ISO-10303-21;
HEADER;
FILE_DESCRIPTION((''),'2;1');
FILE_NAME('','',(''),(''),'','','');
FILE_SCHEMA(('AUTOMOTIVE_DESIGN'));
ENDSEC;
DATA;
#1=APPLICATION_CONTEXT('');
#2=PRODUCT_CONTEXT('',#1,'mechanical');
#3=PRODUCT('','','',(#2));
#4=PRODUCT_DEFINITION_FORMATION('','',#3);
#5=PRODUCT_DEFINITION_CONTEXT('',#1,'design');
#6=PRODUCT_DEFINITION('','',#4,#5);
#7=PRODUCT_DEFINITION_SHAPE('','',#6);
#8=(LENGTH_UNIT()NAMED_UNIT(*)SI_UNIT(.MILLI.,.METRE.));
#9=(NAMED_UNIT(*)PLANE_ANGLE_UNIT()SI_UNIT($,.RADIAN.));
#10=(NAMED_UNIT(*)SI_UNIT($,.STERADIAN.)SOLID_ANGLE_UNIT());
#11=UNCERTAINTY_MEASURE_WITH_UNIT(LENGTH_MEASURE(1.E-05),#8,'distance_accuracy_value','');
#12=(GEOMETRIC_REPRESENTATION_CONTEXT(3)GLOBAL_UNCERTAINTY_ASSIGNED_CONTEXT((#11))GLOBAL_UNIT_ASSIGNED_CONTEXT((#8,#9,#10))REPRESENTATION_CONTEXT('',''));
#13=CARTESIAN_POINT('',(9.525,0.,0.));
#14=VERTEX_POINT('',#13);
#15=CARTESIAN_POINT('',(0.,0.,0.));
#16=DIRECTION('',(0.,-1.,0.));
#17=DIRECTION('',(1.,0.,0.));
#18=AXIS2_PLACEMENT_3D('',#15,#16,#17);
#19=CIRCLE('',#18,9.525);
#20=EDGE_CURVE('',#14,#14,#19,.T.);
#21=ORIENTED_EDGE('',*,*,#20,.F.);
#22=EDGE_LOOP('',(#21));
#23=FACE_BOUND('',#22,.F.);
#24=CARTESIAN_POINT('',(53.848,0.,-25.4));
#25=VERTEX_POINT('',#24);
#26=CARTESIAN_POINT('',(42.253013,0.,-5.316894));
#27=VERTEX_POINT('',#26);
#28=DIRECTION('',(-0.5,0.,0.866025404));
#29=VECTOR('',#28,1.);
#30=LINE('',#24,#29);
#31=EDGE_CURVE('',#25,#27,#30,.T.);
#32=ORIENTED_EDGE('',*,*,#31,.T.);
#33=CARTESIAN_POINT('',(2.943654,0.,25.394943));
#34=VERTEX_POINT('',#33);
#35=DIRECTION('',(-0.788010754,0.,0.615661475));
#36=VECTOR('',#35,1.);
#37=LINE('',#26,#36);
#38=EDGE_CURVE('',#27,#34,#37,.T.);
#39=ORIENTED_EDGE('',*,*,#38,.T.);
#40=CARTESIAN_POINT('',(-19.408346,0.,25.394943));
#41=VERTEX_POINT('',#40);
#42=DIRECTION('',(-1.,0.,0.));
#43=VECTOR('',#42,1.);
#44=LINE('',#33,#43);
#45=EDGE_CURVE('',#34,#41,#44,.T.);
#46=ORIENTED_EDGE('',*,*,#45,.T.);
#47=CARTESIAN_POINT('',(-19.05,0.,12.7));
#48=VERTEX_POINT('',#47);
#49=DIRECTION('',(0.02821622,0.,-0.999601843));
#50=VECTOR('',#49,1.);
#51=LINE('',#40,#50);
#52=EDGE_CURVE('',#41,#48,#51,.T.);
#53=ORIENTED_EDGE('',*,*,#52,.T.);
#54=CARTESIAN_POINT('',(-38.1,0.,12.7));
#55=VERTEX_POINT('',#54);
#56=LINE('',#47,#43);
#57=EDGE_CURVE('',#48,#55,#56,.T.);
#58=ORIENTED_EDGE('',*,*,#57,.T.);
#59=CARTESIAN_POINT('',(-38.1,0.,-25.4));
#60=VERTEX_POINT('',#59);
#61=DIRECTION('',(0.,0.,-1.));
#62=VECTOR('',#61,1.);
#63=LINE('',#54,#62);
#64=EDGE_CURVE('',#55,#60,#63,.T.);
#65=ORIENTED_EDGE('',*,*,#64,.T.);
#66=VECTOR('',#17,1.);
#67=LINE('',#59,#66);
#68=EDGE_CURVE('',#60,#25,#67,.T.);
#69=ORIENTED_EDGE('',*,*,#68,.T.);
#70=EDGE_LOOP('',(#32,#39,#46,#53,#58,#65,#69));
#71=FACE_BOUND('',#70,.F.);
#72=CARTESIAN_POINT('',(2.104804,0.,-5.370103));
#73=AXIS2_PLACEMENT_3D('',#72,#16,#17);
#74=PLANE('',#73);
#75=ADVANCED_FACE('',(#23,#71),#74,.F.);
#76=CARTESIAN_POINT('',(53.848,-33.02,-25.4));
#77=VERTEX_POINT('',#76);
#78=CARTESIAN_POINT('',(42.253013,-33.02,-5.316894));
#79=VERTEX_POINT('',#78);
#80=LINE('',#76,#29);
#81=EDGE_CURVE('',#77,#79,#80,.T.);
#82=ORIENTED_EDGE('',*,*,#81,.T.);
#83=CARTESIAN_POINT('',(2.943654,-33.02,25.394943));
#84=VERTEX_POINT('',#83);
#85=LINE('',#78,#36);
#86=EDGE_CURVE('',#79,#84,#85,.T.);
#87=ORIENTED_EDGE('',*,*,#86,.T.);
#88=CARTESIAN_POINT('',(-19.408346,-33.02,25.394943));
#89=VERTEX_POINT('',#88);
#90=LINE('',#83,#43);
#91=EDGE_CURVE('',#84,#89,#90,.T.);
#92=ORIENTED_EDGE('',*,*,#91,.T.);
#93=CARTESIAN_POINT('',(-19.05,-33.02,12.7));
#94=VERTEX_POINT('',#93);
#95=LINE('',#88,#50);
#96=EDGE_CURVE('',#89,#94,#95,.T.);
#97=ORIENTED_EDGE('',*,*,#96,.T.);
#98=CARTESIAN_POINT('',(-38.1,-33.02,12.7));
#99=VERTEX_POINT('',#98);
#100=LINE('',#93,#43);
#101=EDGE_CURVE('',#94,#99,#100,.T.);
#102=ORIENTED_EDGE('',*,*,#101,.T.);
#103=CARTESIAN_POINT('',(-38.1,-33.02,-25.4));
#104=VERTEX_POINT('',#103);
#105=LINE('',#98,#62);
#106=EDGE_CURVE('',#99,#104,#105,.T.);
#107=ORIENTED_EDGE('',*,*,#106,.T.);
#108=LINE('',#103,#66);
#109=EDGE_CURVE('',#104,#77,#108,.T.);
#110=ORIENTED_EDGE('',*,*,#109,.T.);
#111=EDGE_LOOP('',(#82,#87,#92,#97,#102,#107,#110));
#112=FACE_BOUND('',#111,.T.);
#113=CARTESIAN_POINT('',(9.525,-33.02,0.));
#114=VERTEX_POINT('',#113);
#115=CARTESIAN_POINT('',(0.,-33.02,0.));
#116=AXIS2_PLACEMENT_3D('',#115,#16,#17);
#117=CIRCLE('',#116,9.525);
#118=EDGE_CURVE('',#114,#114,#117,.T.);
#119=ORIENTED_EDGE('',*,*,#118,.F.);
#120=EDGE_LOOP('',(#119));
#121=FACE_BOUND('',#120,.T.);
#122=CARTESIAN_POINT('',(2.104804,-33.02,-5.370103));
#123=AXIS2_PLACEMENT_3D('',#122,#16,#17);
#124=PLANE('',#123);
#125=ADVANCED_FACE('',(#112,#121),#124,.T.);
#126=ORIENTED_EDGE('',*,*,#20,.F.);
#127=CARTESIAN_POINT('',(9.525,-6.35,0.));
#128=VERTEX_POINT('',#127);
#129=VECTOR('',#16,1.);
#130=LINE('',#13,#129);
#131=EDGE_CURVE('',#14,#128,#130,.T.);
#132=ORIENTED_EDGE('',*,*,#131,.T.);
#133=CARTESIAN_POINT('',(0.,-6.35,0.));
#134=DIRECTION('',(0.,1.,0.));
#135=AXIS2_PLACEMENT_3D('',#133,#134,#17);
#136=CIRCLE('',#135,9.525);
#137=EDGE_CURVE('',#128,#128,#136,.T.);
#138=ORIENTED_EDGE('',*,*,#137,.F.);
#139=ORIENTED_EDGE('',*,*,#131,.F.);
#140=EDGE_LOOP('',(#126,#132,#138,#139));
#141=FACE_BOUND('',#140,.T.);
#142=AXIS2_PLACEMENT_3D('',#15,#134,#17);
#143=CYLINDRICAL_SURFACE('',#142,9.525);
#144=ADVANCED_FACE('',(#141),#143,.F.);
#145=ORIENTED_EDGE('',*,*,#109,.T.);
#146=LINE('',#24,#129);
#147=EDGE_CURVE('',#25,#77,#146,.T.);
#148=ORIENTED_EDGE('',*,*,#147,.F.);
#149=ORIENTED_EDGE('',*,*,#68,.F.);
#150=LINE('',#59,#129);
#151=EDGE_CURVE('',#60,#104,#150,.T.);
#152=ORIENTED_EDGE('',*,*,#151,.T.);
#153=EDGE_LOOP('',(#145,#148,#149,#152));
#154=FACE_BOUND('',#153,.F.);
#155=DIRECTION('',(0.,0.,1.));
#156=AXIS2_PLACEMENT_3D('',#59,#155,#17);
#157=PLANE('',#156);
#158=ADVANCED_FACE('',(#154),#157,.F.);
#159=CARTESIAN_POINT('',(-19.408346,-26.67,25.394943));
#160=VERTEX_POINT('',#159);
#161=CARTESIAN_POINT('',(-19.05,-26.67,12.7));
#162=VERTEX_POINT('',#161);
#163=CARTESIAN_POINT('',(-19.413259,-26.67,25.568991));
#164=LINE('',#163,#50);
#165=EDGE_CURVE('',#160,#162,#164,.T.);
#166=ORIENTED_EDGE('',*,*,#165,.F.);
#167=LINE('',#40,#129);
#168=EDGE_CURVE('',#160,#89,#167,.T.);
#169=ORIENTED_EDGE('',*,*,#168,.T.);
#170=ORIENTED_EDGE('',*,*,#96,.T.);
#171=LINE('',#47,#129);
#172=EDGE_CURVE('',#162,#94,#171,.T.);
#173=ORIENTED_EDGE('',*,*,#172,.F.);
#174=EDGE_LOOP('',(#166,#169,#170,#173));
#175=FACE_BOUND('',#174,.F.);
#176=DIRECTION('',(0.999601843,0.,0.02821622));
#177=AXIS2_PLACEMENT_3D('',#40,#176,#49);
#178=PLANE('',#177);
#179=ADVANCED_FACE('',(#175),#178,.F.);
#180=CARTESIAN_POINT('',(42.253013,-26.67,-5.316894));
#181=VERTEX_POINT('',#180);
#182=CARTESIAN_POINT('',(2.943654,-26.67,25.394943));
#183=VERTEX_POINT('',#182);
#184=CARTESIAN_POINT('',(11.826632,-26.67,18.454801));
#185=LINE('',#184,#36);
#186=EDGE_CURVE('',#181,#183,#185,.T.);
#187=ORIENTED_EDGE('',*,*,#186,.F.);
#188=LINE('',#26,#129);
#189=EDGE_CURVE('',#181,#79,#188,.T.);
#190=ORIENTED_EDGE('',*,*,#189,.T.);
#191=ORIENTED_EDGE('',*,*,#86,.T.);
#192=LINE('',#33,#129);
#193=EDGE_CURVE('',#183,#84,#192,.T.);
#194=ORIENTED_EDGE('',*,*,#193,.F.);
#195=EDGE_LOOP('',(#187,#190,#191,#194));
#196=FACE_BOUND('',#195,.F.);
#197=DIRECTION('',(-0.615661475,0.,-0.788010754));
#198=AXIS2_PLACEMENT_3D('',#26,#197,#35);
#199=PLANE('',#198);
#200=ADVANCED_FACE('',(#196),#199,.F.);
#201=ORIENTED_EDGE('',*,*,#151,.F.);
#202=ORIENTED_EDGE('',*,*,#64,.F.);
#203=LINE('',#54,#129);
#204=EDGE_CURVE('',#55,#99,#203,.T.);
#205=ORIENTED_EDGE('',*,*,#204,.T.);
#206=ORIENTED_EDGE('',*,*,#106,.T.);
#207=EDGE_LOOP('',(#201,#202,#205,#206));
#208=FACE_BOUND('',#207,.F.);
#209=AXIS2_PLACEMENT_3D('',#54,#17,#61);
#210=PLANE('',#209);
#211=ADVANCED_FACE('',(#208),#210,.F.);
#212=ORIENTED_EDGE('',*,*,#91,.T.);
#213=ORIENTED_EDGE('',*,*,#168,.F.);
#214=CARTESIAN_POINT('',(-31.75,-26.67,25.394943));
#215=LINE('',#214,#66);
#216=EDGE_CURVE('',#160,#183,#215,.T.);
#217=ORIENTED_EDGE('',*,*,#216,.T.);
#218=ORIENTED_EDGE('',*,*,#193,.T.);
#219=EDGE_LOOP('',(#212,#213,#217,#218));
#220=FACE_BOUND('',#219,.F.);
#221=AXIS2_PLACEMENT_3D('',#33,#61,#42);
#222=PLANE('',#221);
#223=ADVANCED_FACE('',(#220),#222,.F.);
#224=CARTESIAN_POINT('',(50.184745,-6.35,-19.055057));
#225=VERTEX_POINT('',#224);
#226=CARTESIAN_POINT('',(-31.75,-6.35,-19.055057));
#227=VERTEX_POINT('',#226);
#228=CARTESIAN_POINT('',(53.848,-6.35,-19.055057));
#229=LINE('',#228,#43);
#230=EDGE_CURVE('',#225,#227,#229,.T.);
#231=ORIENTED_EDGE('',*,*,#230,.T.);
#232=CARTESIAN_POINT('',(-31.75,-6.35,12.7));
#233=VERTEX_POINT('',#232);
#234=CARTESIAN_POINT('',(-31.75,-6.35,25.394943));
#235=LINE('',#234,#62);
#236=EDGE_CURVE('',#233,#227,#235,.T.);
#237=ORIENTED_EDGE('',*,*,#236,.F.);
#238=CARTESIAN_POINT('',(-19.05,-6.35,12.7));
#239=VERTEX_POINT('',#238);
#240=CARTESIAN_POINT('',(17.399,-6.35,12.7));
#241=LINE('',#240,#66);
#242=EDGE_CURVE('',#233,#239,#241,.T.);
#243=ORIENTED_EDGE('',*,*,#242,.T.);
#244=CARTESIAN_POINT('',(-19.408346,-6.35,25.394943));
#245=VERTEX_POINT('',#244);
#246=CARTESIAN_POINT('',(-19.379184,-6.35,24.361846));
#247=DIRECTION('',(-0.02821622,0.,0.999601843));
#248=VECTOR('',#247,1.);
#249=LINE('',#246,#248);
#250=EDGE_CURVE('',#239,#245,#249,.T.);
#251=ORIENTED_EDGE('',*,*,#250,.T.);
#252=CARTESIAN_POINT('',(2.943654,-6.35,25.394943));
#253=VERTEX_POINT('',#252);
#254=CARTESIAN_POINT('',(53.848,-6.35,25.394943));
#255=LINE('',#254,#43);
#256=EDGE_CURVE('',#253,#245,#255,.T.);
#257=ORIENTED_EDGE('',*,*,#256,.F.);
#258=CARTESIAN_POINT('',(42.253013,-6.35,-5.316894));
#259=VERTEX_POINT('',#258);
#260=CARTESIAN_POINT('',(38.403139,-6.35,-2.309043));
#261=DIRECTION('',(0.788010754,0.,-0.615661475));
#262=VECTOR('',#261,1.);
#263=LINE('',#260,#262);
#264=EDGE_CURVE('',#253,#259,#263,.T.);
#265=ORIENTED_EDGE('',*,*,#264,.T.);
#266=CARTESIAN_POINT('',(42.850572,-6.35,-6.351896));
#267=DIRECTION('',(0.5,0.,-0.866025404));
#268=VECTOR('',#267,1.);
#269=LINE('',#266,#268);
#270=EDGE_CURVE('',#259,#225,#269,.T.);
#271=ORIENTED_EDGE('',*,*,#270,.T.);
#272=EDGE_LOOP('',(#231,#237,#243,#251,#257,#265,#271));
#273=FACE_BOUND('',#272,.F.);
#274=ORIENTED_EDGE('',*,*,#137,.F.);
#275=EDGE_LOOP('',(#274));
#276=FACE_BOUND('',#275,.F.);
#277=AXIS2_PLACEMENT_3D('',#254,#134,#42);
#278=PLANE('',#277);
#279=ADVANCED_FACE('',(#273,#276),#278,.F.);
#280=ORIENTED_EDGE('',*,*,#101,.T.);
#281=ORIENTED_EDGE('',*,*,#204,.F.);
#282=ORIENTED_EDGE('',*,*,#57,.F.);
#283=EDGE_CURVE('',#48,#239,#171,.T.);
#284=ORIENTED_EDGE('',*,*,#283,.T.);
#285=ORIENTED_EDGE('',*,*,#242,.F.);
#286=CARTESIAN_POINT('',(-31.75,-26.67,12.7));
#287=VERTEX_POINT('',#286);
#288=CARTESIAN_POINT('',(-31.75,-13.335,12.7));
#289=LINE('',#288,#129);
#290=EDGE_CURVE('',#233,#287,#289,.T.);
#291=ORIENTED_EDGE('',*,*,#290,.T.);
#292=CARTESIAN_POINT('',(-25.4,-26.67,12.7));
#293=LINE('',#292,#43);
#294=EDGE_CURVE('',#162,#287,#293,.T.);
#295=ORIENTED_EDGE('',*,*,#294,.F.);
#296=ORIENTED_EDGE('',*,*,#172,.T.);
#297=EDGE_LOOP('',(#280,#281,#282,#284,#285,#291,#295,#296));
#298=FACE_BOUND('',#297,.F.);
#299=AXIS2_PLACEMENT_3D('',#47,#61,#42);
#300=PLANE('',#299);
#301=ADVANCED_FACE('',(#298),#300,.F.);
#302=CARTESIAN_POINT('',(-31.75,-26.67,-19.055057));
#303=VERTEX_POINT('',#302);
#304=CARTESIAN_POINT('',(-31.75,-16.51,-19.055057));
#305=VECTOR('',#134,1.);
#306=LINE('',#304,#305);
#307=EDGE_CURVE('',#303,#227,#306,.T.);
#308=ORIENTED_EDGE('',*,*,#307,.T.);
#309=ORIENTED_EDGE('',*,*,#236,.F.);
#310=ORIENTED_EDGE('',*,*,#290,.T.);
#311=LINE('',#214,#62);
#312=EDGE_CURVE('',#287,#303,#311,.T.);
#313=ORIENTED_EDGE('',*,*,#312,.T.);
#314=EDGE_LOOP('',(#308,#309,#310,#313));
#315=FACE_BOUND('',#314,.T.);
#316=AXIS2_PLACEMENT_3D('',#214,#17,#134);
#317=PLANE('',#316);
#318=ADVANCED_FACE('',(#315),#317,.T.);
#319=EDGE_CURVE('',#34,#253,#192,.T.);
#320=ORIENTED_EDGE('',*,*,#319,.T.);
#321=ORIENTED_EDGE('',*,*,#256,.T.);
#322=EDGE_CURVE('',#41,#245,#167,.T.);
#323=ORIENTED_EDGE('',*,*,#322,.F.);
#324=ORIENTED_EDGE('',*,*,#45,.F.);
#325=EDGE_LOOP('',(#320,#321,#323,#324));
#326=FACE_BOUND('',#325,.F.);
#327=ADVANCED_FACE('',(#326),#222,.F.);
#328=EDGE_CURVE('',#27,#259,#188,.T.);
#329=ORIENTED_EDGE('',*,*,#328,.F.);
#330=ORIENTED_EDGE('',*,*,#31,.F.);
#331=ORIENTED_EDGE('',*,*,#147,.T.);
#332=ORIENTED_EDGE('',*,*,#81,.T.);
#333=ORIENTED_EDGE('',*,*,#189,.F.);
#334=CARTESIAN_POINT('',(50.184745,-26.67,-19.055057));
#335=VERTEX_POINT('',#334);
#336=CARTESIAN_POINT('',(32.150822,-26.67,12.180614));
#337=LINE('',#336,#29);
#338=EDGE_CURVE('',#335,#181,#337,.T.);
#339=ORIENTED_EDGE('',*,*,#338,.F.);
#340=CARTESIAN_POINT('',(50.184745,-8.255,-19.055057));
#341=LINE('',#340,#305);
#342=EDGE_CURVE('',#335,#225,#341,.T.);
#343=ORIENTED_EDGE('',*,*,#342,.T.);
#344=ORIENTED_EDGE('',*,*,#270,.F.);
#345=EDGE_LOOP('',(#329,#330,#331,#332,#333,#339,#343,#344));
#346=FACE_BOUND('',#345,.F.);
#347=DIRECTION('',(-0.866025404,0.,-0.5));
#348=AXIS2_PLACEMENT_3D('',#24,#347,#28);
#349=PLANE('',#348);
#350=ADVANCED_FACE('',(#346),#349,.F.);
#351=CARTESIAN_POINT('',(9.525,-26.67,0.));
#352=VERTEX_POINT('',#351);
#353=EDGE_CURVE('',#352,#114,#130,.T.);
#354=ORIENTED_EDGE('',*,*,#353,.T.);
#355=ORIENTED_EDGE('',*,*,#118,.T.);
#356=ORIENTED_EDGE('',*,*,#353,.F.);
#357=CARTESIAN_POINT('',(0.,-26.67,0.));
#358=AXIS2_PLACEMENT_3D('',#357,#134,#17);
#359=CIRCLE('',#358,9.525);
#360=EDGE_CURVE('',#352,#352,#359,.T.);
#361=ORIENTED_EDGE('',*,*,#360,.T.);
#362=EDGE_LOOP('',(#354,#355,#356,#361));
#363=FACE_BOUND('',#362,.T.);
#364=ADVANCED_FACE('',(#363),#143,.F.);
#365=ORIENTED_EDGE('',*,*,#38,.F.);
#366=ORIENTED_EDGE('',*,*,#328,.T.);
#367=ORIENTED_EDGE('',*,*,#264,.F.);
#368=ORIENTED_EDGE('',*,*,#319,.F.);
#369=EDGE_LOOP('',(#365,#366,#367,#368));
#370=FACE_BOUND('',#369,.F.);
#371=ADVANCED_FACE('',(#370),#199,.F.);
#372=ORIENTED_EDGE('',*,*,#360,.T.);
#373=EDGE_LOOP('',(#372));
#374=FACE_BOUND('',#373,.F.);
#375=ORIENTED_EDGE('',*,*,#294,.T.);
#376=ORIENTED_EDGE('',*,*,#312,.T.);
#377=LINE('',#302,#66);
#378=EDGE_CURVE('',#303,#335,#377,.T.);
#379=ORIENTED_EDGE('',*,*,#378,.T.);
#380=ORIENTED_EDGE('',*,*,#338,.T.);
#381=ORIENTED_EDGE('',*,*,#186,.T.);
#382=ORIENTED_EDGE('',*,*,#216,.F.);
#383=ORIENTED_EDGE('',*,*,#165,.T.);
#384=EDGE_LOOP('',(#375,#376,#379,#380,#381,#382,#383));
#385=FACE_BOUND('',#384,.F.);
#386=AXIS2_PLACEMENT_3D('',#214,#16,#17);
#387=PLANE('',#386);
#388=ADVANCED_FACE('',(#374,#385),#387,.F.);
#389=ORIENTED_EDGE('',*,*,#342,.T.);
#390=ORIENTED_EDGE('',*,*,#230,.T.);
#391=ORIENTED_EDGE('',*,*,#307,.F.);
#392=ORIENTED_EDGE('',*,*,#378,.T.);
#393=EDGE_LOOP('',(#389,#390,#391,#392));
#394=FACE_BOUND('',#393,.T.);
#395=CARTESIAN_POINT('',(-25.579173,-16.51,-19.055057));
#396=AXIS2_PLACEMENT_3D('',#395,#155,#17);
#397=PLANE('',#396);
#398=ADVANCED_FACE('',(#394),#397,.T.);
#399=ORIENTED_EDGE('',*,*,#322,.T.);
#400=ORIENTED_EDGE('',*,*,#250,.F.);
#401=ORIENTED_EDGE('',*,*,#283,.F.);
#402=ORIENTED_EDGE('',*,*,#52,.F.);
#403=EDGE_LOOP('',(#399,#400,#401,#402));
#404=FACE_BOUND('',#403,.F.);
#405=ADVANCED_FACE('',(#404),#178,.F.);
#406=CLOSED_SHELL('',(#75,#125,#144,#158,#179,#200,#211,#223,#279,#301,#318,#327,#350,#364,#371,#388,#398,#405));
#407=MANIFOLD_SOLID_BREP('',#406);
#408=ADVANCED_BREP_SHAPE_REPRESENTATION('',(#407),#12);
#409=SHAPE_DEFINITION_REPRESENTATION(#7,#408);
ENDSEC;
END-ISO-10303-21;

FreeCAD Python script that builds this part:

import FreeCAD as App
import Part
import Sketcher
Q = App.Units.Quantity


def add_polygon(sketch, points):
    """Adds a closed chain of lines whose ends are joined by coincident constraints."""
    first, n = sketch.GeometryCount, len(points)
    for a, b in zip(points, points[1:] + points[:1]):
        sketch.addGeometry(Part.LineSegment(App.Vector(*a, 0), App.Vector(*b, 0)), False)
    for i in range(n):
        sketch.addConstraint(Sketcher.Constraint("Coincident", first + i, 2, first + (i + 1) % n, 1))

doc = App.newDocument("Part")
body = doc.addObject("PartDesign::Body", "Body")

sketch1 = doc.addObject("Sketcher::SketchObject", "Sketch")
body.addObject(sketch1)
sketch1.AttachmentSupport = (doc.XZ_Plane, [""])
sketch1.MapMode = "FlatFace"
add_polygon(sketch1, [(2.943654, 25.394943), (-19.408346, 25.394943), (-19.05, 12.7), (-38.1, 12.7), (-38.1, -25.4), (53.848, -25.4), (42.253013, -5.316894)])
sketch1.addGeometry(Part.Circle(App.Vector(0, 0, 0), App.Vector(0, 0, 1), 9.525), False)
sketch1.addConstraint([
    Sketcher.Constraint("Horizontal", 0),
    Sketcher.Constraint("Horizontal", 2),
    Sketcher.Constraint("Vertical", 3),
    Sketcher.Constraint("Horizontal", 4),
    Sketcher.Constraint("Coincident", 7, 3, -1, 1),
    Sketcher.Constraint("Diameter", 7, Q("0.75 in")),
    Sketcher.Constraint("DistanceY", 3, 2, 3, 1, Q("1.5 in")),
    Sketcher.Constraint("DistanceY", 3, 2, -1, 1, Q("1 in")),
    Sketcher.Constraint("Angle", 5, Q("120 deg")),
    Sketcher.Constraint("Angle", 6, Q("142 deg")),
    Sketcher.Constraint("Distance", 1, Q("0.5 in")),
    Sketcher.Constraint("DistanceX", 0, 2, 0, 1, Q("0.88 in")),
    Sketcher.Constraint("DistanceX", 2, 2, 2, 1, Q("0.75 in")),
    Sketcher.Constraint("DistanceX", 4, 1, 4, 2, Q("3.62 in")),
    Sketcher.Constraint("DistanceX", 2, 2, -1, 1, Q("1.5 in")),
    Sketcher.Constraint("DistanceX", 0, 2, 5, 2, 61.661359),
])
pad1 = doc.addObject("PartDesign::Pad", "Pad")
body.addObject(pad1)
pad1.Profile = sketch1
pad1.Length = Q("1.3 in")

sketch2 = doc.addObject("Sketcher::SketchObject", "Sketch001")
body.addObject(sketch2)
sketch2.AttachmentSupport = (doc.XY_Plane, [""])
sketch2.MapMode = "FlatFace"
sketch2.AttachmentOffset = App.Placement(App.Vector(0, 0, 25.394943), App.Rotation())
add_polygon(sketch2, [(-31.75, -6.35), (-31.75, -26.67), (53.848, -26.67), (53.848, -6.35)])
sketch2.addConstraint([
    Sketcher.Constraint("Vertical", 0),
    Sketcher.Constraint("Horizontal", 1),
    Sketcher.Constraint("Vertical", 2),
    Sketcher.Constraint("Horizontal", 3),
    Sketcher.Constraint("DistanceY", 0, 2, 0, 1, Q("0.8 in")),
    Sketcher.Constraint("DistanceX", 1, 1, 1, 2, Q("3.37 in")),
    Sketcher.Constraint("DistanceX", 0, 2, -1, 1, Q("1.25 in")),
    Sketcher.Constraint("DistanceY", 0, 2, -1, 1, Q("1.05 in")),
])
pocket1 = doc.addObject("PartDesign::Pocket", "Pocket")
body.addObject(pocket1)
pocket1.Profile = sketch2
pocket1.Length = Q("1.75 in")

doc.recompute()
